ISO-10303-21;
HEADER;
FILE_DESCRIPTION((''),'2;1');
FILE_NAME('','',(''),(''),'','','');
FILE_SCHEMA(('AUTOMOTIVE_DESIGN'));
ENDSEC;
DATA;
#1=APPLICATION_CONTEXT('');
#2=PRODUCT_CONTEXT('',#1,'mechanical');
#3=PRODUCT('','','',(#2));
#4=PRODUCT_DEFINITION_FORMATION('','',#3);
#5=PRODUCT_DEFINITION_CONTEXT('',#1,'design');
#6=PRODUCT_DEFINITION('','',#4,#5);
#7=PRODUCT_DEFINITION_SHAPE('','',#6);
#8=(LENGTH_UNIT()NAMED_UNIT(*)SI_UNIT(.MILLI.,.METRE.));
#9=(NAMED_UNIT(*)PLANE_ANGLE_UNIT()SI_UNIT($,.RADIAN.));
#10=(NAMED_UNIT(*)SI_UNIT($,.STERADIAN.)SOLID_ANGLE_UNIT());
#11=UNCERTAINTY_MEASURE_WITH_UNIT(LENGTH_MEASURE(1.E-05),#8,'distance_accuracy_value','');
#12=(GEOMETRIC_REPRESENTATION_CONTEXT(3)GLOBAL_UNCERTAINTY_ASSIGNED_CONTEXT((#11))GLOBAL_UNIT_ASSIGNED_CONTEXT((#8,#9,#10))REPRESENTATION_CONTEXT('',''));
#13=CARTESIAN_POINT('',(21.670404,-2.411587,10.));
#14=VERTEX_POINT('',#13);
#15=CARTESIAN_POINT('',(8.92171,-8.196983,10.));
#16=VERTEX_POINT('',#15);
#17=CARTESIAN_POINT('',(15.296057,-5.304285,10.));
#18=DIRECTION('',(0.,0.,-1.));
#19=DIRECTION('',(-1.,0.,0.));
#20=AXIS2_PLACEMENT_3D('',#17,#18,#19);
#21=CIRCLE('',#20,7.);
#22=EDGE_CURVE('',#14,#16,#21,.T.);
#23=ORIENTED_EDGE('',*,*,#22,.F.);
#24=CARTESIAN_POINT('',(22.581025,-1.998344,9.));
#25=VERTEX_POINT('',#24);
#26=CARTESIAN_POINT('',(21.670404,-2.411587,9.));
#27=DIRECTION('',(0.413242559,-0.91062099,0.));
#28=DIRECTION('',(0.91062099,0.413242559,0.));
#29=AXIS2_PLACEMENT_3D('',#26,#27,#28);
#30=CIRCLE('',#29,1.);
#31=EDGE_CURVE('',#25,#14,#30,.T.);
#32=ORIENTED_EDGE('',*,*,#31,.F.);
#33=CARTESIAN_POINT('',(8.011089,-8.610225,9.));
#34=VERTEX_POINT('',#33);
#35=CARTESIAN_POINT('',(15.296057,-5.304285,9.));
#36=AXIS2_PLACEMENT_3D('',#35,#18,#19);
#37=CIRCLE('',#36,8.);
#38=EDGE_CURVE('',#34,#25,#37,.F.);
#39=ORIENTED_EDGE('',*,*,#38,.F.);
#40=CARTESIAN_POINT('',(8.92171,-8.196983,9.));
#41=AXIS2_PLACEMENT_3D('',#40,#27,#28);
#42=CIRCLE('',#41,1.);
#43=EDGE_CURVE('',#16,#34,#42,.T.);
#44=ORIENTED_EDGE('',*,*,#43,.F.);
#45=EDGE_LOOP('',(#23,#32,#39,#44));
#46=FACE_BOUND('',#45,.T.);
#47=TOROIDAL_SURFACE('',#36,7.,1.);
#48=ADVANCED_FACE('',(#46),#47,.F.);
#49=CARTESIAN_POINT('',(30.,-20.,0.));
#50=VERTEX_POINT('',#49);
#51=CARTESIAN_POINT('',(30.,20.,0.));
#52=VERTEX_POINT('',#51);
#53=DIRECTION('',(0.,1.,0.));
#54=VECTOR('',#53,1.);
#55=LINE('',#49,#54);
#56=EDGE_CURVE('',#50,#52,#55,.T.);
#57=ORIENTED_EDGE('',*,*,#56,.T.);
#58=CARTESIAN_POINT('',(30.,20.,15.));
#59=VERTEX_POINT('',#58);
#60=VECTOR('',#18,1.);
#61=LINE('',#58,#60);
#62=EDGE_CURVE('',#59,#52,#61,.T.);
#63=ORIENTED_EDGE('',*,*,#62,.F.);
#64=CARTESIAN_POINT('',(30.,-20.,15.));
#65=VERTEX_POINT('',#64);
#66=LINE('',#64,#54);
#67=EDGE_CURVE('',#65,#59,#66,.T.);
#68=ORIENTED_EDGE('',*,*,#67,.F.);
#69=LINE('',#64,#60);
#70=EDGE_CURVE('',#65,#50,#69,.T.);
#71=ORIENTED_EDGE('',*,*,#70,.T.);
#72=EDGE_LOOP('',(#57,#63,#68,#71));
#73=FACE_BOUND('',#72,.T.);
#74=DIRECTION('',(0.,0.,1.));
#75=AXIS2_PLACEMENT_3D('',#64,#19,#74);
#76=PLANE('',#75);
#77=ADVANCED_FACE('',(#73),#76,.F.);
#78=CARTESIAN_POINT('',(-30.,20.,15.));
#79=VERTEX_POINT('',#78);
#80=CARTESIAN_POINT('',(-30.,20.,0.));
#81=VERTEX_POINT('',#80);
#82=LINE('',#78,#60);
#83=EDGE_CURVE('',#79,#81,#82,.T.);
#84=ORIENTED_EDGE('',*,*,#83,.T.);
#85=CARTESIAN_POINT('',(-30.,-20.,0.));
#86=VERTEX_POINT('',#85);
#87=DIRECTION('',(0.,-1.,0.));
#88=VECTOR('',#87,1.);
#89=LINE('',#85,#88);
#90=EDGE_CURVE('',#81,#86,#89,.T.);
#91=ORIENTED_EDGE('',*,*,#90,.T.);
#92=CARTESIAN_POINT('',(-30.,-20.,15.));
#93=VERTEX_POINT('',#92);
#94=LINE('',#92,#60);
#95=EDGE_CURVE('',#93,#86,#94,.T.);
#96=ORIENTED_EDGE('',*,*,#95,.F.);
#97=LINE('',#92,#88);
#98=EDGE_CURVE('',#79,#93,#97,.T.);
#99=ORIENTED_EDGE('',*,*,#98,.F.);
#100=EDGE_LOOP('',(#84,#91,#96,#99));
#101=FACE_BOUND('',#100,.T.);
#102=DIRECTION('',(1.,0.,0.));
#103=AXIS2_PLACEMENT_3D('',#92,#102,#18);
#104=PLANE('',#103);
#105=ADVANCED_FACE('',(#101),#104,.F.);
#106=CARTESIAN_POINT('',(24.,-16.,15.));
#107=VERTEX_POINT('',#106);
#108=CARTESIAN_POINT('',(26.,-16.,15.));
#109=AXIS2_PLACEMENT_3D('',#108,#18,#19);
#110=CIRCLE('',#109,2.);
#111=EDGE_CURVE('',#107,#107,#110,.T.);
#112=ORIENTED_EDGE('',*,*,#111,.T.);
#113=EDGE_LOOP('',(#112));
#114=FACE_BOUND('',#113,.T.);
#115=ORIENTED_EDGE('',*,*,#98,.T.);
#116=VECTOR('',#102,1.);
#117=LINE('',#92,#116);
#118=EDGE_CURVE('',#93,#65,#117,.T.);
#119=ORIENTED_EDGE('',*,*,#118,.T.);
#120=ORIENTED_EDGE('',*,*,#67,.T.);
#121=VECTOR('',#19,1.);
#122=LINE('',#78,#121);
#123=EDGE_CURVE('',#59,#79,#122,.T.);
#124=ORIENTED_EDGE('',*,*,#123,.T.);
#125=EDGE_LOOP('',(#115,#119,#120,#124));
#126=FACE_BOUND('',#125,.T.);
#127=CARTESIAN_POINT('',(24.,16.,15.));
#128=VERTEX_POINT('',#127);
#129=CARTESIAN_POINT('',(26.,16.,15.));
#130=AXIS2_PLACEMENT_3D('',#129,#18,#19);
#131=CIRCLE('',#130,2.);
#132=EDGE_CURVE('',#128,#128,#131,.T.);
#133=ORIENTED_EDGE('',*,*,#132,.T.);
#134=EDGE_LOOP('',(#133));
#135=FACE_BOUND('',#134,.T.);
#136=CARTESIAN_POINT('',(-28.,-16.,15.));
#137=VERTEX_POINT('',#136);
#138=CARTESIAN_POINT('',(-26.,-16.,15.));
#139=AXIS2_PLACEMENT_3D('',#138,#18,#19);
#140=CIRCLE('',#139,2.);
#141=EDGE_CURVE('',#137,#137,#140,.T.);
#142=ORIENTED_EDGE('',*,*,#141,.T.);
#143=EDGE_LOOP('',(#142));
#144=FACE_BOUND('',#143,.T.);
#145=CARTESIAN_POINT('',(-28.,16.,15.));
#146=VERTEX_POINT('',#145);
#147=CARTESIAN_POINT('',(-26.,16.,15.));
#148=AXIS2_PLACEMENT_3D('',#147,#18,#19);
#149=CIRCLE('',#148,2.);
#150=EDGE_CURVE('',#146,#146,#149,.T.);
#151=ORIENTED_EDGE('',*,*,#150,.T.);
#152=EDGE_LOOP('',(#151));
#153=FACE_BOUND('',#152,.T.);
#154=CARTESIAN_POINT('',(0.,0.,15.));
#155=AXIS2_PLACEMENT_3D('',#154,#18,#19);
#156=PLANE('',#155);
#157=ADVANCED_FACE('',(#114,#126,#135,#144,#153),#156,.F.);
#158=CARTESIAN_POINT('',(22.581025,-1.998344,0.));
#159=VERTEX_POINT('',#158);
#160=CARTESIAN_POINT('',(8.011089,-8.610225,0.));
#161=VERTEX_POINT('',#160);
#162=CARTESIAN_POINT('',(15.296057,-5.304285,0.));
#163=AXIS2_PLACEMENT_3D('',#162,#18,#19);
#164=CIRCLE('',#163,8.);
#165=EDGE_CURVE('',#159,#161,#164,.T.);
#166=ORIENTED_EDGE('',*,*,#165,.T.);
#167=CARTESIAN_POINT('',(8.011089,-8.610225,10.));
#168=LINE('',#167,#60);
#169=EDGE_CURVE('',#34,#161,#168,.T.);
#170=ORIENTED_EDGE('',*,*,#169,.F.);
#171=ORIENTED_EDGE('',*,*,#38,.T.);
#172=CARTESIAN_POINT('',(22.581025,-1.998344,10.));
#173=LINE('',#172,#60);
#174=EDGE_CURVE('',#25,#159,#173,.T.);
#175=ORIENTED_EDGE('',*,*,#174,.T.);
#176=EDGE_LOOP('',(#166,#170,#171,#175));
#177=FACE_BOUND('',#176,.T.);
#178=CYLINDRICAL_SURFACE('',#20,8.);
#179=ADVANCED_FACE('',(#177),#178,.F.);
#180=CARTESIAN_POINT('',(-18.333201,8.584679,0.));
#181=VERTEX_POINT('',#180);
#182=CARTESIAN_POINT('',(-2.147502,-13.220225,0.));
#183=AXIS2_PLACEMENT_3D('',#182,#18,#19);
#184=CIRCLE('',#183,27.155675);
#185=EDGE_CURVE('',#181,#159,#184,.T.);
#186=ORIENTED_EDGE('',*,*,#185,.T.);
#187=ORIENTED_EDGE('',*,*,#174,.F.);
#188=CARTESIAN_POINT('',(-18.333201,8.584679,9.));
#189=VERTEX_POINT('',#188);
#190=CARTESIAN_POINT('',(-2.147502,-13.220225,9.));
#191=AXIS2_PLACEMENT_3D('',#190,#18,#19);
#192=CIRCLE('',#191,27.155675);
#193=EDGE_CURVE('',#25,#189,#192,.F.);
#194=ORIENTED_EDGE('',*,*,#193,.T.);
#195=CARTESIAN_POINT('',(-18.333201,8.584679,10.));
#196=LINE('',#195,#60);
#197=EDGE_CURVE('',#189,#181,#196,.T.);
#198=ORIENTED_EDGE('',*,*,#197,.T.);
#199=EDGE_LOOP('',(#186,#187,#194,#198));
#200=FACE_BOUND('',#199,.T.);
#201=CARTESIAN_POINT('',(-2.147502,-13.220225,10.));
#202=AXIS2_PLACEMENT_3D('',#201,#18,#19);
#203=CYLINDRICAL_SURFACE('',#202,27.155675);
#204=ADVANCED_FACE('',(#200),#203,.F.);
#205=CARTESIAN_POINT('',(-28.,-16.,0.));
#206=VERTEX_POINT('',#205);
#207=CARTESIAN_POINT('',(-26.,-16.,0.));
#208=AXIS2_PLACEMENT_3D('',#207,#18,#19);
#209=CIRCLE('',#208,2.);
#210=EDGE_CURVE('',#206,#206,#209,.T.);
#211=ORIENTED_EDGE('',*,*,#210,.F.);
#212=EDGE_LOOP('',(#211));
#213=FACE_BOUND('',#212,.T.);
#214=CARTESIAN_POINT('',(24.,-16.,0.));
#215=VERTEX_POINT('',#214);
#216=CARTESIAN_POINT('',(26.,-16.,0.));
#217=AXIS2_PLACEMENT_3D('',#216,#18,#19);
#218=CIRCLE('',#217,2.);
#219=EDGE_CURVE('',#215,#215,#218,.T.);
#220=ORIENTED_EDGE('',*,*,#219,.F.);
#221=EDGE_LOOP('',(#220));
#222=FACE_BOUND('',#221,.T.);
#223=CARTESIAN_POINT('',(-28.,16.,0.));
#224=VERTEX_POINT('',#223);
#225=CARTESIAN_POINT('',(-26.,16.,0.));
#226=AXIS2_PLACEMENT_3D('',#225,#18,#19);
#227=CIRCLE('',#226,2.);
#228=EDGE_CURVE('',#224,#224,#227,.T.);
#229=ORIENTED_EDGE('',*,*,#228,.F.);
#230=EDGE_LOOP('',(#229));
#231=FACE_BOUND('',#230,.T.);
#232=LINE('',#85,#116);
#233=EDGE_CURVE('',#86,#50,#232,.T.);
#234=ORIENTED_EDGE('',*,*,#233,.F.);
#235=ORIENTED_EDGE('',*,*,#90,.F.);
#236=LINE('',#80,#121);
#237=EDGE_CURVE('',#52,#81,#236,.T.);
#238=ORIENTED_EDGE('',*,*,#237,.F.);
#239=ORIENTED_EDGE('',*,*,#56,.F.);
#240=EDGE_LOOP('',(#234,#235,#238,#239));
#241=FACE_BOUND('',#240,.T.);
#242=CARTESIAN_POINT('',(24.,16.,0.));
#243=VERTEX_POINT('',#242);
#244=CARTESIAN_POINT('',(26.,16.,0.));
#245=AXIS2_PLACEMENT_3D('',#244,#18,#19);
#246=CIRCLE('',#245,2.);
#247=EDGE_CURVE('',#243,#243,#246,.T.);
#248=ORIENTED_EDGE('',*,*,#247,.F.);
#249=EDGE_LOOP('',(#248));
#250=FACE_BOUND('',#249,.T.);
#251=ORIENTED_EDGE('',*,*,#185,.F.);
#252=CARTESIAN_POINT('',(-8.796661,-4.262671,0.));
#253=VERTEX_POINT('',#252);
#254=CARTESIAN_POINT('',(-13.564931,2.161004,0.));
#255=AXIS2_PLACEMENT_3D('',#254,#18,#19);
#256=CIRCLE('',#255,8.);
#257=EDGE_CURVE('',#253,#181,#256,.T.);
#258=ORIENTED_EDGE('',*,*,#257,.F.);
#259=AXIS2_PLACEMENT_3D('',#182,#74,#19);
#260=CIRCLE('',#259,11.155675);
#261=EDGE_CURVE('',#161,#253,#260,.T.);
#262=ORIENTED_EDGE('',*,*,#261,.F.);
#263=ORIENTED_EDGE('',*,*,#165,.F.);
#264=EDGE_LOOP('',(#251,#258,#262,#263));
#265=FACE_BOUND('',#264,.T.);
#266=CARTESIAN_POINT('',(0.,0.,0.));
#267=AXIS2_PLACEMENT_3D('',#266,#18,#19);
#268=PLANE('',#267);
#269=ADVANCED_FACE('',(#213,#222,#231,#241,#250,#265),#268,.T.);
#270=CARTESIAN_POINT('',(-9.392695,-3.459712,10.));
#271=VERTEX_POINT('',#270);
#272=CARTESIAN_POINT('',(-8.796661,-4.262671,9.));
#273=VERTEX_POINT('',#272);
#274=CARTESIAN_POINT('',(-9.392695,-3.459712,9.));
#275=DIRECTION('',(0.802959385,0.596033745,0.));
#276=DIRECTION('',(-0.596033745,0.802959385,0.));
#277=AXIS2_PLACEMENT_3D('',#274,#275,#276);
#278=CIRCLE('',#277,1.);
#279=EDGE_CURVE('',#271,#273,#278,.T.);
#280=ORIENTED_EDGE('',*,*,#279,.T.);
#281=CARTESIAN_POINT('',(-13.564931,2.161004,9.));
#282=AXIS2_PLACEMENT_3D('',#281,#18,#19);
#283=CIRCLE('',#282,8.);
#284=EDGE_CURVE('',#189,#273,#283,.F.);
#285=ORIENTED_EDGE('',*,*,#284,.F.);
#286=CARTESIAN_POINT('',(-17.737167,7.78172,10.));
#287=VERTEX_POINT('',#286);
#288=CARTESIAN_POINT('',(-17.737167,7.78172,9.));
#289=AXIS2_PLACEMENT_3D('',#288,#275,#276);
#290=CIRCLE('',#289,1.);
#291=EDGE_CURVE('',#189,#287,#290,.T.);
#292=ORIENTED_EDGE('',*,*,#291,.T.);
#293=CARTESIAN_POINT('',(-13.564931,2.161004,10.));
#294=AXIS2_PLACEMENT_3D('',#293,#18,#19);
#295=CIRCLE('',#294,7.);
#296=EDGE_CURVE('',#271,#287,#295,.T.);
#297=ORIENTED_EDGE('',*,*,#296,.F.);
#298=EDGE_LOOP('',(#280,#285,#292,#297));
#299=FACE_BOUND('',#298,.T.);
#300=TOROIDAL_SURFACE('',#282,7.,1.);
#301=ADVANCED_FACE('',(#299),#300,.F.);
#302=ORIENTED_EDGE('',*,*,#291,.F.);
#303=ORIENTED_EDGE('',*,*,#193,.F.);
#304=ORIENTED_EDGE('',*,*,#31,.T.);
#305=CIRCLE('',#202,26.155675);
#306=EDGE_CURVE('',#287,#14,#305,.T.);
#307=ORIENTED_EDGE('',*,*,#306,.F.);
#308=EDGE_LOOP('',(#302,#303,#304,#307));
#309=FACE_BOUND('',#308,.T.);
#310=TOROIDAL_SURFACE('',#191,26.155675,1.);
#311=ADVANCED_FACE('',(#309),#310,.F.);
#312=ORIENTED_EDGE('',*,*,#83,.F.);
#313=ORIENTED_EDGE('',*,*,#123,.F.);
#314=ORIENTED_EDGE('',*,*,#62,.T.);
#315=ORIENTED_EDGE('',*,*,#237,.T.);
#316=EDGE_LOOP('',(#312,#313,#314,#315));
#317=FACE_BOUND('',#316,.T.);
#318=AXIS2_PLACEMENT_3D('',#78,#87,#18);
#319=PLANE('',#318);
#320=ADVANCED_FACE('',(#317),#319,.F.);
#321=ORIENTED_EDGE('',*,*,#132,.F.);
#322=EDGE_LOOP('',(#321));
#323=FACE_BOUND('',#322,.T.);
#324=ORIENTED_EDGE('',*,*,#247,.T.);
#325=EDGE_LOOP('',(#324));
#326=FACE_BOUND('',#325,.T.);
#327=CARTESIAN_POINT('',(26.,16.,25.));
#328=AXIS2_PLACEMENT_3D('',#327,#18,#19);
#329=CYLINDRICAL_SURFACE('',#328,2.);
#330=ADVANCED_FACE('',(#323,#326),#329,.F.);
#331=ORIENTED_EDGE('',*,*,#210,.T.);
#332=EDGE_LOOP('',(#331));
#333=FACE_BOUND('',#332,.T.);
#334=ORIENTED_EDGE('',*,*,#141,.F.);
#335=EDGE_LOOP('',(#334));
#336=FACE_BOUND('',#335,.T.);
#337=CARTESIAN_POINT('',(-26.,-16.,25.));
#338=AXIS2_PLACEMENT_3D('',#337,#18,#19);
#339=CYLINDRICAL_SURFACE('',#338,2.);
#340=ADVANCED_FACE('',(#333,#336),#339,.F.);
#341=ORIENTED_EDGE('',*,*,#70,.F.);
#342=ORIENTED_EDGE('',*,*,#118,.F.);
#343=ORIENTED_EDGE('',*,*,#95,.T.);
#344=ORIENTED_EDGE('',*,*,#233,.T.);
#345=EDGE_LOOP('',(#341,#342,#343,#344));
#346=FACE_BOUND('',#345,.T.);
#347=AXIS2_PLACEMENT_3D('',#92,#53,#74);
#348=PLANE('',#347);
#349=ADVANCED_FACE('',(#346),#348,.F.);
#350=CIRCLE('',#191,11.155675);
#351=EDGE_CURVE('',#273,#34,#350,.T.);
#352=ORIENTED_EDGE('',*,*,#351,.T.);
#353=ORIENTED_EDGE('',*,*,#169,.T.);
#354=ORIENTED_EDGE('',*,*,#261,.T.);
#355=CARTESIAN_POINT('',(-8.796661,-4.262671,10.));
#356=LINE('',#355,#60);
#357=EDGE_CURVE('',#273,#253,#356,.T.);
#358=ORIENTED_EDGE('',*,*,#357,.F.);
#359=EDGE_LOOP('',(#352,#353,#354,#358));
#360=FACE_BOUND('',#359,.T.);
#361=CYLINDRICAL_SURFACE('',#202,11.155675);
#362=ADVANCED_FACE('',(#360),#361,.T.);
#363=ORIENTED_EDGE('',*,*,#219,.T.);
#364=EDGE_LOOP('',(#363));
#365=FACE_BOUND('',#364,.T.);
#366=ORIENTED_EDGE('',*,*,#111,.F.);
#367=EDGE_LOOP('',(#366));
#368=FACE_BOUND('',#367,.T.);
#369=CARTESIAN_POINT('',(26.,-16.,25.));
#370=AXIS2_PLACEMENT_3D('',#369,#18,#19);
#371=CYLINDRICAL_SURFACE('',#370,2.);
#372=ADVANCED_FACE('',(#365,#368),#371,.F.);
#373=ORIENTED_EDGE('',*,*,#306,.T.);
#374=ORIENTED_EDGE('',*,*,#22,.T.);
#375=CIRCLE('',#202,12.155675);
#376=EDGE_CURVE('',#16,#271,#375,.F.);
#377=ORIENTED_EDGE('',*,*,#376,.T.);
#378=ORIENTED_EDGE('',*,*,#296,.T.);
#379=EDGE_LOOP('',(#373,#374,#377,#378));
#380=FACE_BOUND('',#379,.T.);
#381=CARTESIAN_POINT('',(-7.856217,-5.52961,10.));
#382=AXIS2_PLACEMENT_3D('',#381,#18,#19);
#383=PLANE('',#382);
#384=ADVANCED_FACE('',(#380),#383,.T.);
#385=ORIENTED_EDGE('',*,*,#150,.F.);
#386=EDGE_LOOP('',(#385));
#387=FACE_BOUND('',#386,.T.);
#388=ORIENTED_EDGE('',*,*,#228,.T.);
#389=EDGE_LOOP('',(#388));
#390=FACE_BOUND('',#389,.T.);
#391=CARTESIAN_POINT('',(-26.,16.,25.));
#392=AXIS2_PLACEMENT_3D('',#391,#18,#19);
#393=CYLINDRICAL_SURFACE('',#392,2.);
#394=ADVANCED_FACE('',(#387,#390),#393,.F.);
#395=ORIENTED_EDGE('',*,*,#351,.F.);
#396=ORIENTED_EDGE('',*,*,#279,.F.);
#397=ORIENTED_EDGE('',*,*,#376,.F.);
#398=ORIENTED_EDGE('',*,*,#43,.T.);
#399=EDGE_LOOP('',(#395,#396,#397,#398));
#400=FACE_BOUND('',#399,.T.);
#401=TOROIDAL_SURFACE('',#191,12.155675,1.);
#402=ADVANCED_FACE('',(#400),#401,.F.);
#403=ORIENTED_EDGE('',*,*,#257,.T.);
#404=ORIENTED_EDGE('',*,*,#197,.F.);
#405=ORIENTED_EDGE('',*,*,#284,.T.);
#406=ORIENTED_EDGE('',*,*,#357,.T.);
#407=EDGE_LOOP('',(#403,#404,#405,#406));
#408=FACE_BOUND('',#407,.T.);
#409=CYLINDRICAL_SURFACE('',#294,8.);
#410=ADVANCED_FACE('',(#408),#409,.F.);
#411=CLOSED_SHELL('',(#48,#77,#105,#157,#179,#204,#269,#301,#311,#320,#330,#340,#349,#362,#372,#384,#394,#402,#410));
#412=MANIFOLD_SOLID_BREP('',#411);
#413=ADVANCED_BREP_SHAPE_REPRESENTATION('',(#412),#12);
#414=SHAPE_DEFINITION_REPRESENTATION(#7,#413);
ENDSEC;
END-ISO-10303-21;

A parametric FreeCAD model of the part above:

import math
import FreeCAD as App
import Part
import Sketcher


def edges_at(feature, points):
    """Names of the edges that pass closest to the given points."""
    edges = feature.Shape.Edges
    near = lambda p: min(range(len(edges)), key=lambda i: edges[i].distToShape(Part.Vertex(*p))[0])
    return sorted({f"Edge{near(p) + 1}" for p in points})


def add_polygon(sketch, points):
    """Adds a closed chain of lines whose ends are joined by coincident constraints."""
    first, n = sketch.GeometryCount, len(points)
    for a, b in zip(points, points[1:] + points[:1]):
        sketch.addGeometry(Part.LineSegment(App.Vector(*a, 0), App.Vector(*b, 0)), False)
    for i in range(n):
        sketch.addConstraint(Sketcher.Constraint("Coincident", first + i, 2, first + (i + 1) % n, 1))

doc = App.newDocument("Part")
body = doc.addObject("PartDesign::Body", "Body")

sketch1 = body.newObject("Sketcher::SketchObject", "Sketch")
sketch1.AttachmentSupport = (doc.getObject("XY_Plane"), [""])
sketch1.MapMode = "FlatFace"
add_polygon(sketch1, [(-30, 20), (-30, -20), (30, -20), (30, 20)])
sketch1.addConstraint(Sketcher.Constraint("Vertical", 0))
sketch1.addConstraint(Sketcher.Constraint("Horizontal", 1))
sketch1.addConstraint(Sketcher.Constraint("Vertical", 2))
sketch1.addConstraint(Sketcher.Constraint("Horizontal", 3))
sketch1.addConstraint(Sketcher.Constraint("Symmetric", 0, 2, 2, 2, -1, 1))
sketch1.addConstraint(Sketcher.Constraint("DistanceX", 1, 1, 1, 2, 60.0))
sketch1.addConstraint(Sketcher.Constraint("DistanceY", 0, 2, 0, 1, 40.0))
pad1 = body.newObject("PartDesign::Pad", "Pad")
pad1.Profile = sketch1
pad1.Length = 15

sketch2 = body.newObject("Sketcher::SketchObject", "Sketch001")
sketch2.AttachmentSupport = (doc.getObject("XY_Plane"), [""])
sketch2.MapMode = "FlatFace"
sketch2.addGeometry(Part.Circle(App.Vector(26, 16, 0), App.Vector(0, 0, 1), 2), False)
sketch2.addGeometry(Part.Circle(App.Vector(-26, 16, 0), App.Vector(0, 0, 1), 2), False)
sketch2.addGeometry(Part.Circle(App.Vector(26, -16, 0), App.Vector(0, 0, 1), 2), False)
sketch2.addGeometry(Part.Circle(App.Vector(-26, -16, 0), App.Vector(0, 0, 1), 2), False)
sketch2.addConstraint(Sketcher.Constraint("Equal", 0, 1))
sketch2.addConstraint(Sketcher.Constraint("Equal", 1, 2))
sketch2.addConstraint(Sketcher.Constraint("Equal", 2, 3))
sketch2.addConstraint(Sketcher.Constraint("Symmetric", 1, 3, 2, 3, -1, 1))
sketch2.addConstraint(Sketcher.Constraint("Symmetric", 0, 3, 3, 3, -1, 1))
sketch2.addConstraint(Sketcher.Constraint("Symmetric", 0, 3, 1, 3, -2))
sketch2.addConstraint(Sketcher.Constraint("Diameter", 0, 4.0))
sketch2.addConstraint(Sketcher.Constraint("DistanceX", -1, 1, 0, 3, 26.0))
sketch2.addConstraint(Sketcher.Constraint("DistanceY", -1, 1, 0, 3, 16.0))
pocket1 = body.newObject("PartDesign::Pocket", "Pocket")
pocket1.Profile = sketch2
pocket1.Length = 25
pocket1.Reversed = True

sketch3 = body.newObject("Sketcher::SketchObject", "Sketch002")
sketch3.AttachmentSupport = (doc.getObject("XY_Plane"), [""])
sketch3.MapMode = "FlatFace"
sketch3.addGeometry(Part.ArcOfCircle(Part.Circle(App.Vector(-2.147502, -13.220225, 0), App.Vector(0, 0, 1), 27.155675), math.radians(24.408691), math.radians(126.586361)), False)
sketch3.addGeometry(Part.ArcOfCircle(Part.Circle(App.Vector(15.296057, -5.304285, 0), App.Vector(0, 0, 1), 8), math.radians(-155.591309), math.radians(24.408691)), False)
sketch3.addGeometry(Part.ArcOfCircle(Part.Circle(App.Vector(-2.147502, -13.220225, 0), App.Vector(0, 0, 1), 11.155675), math.radians(24.408691), math.radians(126.586361)), False)
sketch3.addGeometry(Part.ArcOfCircle(Part.Circle(App.Vector(-13.564931, 2.161004, 0), App.Vector(0, 0, 1), 8), math.radians(126.586361), math.radians(306.586361)), False)
sketch3.addConstraint(Sketcher.Constraint("Tangent", 0, 1, 1, 2))
sketch3.addConstraint(Sketcher.Constraint("Tangent", 1, 1, 2, 1))
sketch3.addConstraint(Sketcher.Constraint("Tangent", 2, 2, 3, 2))
sketch3.addConstraint(Sketcher.Constraint("Tangent", 3, 1, 0, 2))
sketch3.addConstraint(Sketcher.Constraint("Coincident", 2, 3, 0, 3))
sketch3.addConstraint(Sketcher.Constraint("Radius", 1, 8.0))
sketch3.addConstraint(Sketcher.Constraint("DistanceY", 2, 3, 1, 1, 4.61))
sketch3.addConstraint(Sketcher.Constraint("Radius", 0, 27.155675))
sketch3.addConstraint(Sketcher.Constraint("DistanceX", 3, 1, -1, 1, 18.333201))
sketch3.addConstraint(Sketcher.Constraint("DistanceX", 3, 1, 2, 3, 16.185698))
sketch3.addConstraint(Sketcher.Constraint("DistanceY", 2, 2, -1, 1, 4.262671))
pocket2 = body.newObject("PartDesign::Pocket", "Pocket001")
pocket2.Profile = sketch3
pocket2.Length = 10
pocket2.Reversed = True
doc.recompute()

fillet = body.newObject("PartDesign::Fillet", "Fillet")
fillet.Base = (pocket2, edges_at(pocket2, [
    (-19.989, -2.607, 10),
    (0.646, -2.42, 10),
    (18.602, -12.589, 10),
    (4.653, 13.07, 10),
]))
fillet.Radius = 1

doc.recompute()
